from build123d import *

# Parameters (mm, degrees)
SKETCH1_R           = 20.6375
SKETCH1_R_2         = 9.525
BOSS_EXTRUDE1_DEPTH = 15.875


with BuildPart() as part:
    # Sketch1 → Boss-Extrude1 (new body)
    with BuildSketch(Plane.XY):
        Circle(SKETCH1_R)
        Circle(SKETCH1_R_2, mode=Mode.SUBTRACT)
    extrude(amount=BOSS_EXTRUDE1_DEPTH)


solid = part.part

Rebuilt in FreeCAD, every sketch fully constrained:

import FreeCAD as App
import Part
import Sketcher
from FreeCAD import Vector
Q = App.Units.Quantity

doc = App.newDocument("Part")
body = doc.addObject("PartDesign::Body", "Body")

# Sketch on XY plane
sketch1 = body.newObject("Sketcher::SketchObject", "Sketch")
sketch1.AttachmentSupport = (doc.getObject("XY_Plane"), [""])
sketch1.MapMode = "FlatFace"
sketch1.addGeometry([
    Part.Circle(Vector(0, 0, 0), Vector(0, 0, 1), 21),
    Part.Circle(Vector(0, 0, 0), Vector(0, 0, 1), 10),
], False)
sketch1.addConstraint([
    Sketcher.Constraint("Coincident", 0, 3, -1, 1),
    Sketcher.Constraint("Coincident", 1, 3, -1, 1),
    Sketcher.Constraint("Diameter", 1, Q("0.75 in")),
    Sketcher.Constraint("Diameter", 0, Q("1.625 in")),
])
pad1 = body.newObject("PartDesign::Pad", "Pad")
pad1.Profile = sketch1
pad1.Length = Q("0.625 in")

doc.recompute()
